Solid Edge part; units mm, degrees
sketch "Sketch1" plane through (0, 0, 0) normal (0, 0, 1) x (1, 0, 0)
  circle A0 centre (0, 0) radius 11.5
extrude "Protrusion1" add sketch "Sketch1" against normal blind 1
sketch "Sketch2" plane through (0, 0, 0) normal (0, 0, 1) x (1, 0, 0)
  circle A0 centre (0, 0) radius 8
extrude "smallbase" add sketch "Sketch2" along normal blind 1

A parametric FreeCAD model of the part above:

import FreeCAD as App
import Part
import Sketcher
from FreeCAD import Vector
Q = App.Units.Quantity

doc = App.newDocument("Part")
params = doc.addObject("Spreadsheet::Sheet", "Params")
for row, (alias, value) in enumerate([
    ("sketch1_diameter", "23 mm"),
    ("pad1_length", "1 mm"),
    ("sketch2_diameter", "16 mm"),
    ("pad2_length", "1 mm"),
], start=1):
    params.set(f"A{row}", alias)
    params.set(f"B{row}", "=" + value)
    params.setAlias(f"B{row}", alias)

body = doc.addObject("PartDesign::Body", "Body")

sketch1 = body.newObject("Sketcher::SketchObject", "Sketch")
sketch1.AttachmentSupport = (doc.getObject("XY_Plane"), [""])
sketch1.MapMode = "FlatFace"
sketch1.addGeometry(Part.Circle(Vector(0, 0, 0), Vector(0, 0, 1), 12), False)
sketch1.addConstraint([
    Sketcher.Constraint("Coincident", 0, 3, -1, 1),
    Sketcher.Constraint("Diameter", 0, Q("23 mm")),
])
sketch1.setExpression("Constraints[1]", "Params.sketch1_diameter")
pad1 = body.newObject("PartDesign::Pad", "Pad")
pad1.Profile = sketch1
pad1.setExpression("Length", "Params.pad1_length")
pad1.Reversed = True

sketch2 = body.newObject("Sketcher::SketchObject", "Sketch001")
sketch2.AttachmentSupport = (doc.getObject("XY_Plane"), [""])
sketch2.MapMode = "FlatFace"
sketch2.addGeometry(Part.Circle(Vector(0, 0, 0), Vector(0, 0, 1), 8), False)
sketch2.addConstraint([
    Sketcher.Constraint("Coincident", 0, 3, -1, 1),
    Sketcher.Constraint("Diameter", 0, Q("16 mm")),
])
sketch2.setExpression("Constraints[1]", "Params.sketch2_diameter")
pad2 = body.newObject("PartDesign::Pad", "Pad001")
pad2.Profile = sketch2
pad2.setExpression("Length", "Params.pad2_length")

doc.recompute()
